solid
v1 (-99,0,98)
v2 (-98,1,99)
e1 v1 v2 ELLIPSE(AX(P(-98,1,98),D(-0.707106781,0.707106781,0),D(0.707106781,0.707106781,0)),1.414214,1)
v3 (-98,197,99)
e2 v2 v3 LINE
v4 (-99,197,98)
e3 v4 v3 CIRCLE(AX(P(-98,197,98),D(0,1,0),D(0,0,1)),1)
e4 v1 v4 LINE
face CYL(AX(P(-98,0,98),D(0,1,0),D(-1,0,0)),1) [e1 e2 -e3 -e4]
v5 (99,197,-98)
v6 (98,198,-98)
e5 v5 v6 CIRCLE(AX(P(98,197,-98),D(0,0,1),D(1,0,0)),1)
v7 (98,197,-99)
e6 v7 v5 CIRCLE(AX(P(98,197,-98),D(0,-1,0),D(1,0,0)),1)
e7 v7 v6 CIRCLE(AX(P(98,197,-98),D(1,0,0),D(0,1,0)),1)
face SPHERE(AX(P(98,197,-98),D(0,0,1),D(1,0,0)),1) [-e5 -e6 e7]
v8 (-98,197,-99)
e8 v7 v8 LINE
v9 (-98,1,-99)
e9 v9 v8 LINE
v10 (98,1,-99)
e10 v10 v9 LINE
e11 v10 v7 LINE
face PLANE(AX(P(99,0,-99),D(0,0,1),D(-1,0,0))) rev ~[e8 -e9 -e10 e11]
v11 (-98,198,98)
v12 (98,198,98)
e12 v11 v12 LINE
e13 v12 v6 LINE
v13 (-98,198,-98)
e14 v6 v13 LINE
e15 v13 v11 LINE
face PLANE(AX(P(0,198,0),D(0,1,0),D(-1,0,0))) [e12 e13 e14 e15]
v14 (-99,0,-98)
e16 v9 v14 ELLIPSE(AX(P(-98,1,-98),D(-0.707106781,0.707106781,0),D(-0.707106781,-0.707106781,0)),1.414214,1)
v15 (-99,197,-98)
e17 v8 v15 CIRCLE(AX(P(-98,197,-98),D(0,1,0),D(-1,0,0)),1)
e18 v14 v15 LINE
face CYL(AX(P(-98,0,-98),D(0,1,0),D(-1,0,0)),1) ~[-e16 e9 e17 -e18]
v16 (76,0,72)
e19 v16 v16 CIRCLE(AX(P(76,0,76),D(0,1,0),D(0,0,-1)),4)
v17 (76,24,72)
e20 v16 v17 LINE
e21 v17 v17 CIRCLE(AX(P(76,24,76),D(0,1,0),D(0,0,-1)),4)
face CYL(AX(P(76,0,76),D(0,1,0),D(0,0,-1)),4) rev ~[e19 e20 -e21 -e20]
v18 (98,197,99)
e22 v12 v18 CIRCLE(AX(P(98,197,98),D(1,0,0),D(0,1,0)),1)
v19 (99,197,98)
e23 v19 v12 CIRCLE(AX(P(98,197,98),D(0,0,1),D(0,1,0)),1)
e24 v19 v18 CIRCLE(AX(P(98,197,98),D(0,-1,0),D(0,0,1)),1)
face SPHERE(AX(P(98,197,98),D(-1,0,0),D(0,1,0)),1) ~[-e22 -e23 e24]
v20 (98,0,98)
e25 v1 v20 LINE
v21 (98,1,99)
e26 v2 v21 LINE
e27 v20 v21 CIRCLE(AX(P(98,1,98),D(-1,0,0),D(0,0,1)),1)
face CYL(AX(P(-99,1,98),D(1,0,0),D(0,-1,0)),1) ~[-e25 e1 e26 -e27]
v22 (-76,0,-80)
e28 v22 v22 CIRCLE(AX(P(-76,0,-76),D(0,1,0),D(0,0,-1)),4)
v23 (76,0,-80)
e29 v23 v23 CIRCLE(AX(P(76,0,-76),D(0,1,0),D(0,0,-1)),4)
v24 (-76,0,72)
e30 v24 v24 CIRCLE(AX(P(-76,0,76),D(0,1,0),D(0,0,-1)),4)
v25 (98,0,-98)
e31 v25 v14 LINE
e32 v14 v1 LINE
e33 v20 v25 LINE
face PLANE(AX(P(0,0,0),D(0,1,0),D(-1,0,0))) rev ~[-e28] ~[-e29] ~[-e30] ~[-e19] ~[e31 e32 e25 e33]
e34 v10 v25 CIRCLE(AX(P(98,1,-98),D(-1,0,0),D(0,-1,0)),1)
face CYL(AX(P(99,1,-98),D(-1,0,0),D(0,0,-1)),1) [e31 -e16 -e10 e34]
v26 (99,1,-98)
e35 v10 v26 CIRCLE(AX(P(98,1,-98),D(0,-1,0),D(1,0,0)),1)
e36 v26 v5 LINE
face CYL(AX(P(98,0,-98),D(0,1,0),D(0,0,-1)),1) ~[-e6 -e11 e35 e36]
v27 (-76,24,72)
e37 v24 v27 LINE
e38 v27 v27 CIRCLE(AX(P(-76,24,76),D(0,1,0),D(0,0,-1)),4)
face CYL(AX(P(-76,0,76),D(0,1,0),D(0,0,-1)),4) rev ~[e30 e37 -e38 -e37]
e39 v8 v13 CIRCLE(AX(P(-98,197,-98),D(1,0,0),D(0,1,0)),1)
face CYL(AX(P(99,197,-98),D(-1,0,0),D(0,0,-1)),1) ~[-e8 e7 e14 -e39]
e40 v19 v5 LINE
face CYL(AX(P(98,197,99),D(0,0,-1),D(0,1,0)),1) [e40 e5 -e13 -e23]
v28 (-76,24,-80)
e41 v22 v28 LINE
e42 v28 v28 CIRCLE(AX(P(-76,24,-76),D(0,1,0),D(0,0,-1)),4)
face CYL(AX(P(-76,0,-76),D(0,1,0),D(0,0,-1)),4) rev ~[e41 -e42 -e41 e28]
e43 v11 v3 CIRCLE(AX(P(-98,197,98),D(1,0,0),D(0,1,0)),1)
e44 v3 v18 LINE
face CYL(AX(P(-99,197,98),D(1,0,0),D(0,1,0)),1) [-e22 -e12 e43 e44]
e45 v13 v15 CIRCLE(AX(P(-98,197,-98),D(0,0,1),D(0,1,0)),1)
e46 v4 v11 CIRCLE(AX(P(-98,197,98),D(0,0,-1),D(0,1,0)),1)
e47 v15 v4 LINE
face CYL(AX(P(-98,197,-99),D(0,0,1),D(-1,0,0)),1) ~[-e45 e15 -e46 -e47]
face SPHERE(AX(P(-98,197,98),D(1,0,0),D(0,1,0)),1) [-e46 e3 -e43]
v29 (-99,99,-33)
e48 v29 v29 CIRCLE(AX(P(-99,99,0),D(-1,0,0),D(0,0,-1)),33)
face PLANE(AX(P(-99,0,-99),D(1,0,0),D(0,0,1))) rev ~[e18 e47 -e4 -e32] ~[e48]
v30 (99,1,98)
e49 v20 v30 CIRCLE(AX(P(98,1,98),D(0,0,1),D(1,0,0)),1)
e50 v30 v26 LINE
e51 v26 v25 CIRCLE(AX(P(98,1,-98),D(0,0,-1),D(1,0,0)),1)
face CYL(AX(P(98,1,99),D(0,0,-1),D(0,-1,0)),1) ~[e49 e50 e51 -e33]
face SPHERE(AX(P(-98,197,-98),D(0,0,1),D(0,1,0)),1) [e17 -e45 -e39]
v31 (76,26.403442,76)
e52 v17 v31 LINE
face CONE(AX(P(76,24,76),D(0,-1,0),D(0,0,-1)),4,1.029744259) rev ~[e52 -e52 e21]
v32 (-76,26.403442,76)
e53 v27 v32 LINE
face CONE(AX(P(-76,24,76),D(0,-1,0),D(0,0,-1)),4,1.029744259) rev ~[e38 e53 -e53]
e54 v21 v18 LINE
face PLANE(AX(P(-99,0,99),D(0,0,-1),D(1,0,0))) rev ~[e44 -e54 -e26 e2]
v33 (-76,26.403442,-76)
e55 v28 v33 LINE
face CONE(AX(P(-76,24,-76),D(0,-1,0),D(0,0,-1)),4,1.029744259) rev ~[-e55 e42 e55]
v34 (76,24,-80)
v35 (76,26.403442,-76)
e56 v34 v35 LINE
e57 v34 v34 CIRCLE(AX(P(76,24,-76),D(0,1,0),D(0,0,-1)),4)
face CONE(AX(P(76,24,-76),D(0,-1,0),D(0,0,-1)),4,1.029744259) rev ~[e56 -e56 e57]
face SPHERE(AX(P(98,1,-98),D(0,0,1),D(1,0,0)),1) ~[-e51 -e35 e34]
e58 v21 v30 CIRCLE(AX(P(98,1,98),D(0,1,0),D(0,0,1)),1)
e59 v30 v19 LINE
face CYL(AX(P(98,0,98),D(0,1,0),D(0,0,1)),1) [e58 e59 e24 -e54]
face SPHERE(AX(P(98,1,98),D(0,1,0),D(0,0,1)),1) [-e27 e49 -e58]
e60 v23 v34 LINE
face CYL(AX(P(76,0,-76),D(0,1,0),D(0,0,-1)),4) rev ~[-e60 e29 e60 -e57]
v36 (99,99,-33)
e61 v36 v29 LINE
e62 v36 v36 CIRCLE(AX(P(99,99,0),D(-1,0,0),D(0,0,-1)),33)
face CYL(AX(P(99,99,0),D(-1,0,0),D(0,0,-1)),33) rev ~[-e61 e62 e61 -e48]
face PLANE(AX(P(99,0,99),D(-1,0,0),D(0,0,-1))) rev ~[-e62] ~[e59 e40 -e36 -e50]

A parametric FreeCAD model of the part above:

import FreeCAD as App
import Part
import Sketcher


def edges_at(feature, points):
    """Names of the edges that pass closest to the given points."""
    edges = feature.Shape.Edges
    near = lambda p: min(range(len(edges)), key=lambda i: edges[i].distToShape(Part.Vertex(*p))[0])
    return sorted({f"Edge{near(p) + 1}" for p in points})

doc = App.newDocument("Part")
body = doc.addObject("PartDesign::Body", "Body")

# Sketch on XZ plane
sketch1 = doc.addObject("Sketcher::SketchObject", "Sketch")
body.addObject(sketch1)
sketch1.AttachmentSupport = (doc.XZ_Plane, [""])
sketch1.MapMode = "FlatFace"
sketch1.addGeometry(Part.LineSegment(App.Vector(-99, -99, 0), App.Vector(-99, 99, 0)), False)
sketch1.addGeometry(Part.LineSegment(App.Vector(-99, 99, 0), App.Vector(99, 99, 0)), False)
sketch1.addGeometry(Part.LineSegment(App.Vector(99, 99, 0), App.Vector(99, -99, 0)), False)
sketch1.addGeometry(Part.LineSegment(App.Vector(99, -99, 0), App.Vector(-99, -99, 0)), False)
sketch1.addConstraint(Sketcher.Constraint("Coincident", 0, 2, 1, 1))
sketch1.addConstraint(Sketcher.Constraint("Coincident", 1, 2, 2, 1))
sketch1.addConstraint(Sketcher.Constraint("Coincident", 2, 2, 3, 1))
sketch1.addConstraint(Sketcher.Constraint("Coincident", 3, 2, 0, 1))
sketch1.addConstraint(Sketcher.Constraint("Vertical", 0))
sketch1.addConstraint(Sketcher.Constraint("Horizontal", 1))
sketch1.addConstraint(Sketcher.Constraint("Vertical", 2))
sketch1.addConstraint(Sketcher.Constraint("Horizontal", 3))
sketch1.addConstraint(Sketcher.Constraint("Symmetric", 0, 2, 2, 2, -1, 1))
sketch1.addConstraint(Sketcher.Constraint("Equal", 3, 0))
sketch1.addConstraint(Sketcher.Constraint("DistanceX", 1, 1, 1, 2, 198.0))
pad1 = doc.addObject("PartDesign::Pad", "Pad")
body.addObject(pad1)
pad1.Profile = sketch1
pad1.Length = 198
pad1.Reversed = True

# Sketch on YZ plane
sketch2 = doc.addObject("Sketcher::SketchObject", "Sketch001")
body.addObject(sketch2)
sketch2.AttachmentSupport = (doc.YZ_Plane, [""])
sketch2.MapMode = "FlatFace"
sketch2.AttachmentOffset = App.Placement(App.Vector(0, 0, 99), App.Rotation())
sketch2.addGeometry(Part.Circle(App.Vector(99, 0, 0), App.Vector(0, 0, 1), 33), False)
sketch2.addConstraint(Sketcher.Constraint("PointOnObject", 0, 3, -1))
sketch2.addConstraint(Sketcher.Constraint("Diameter", 0, 66.0))
sketch2.addConstraint(Sketcher.Constraint("DistanceX", -1, 1, 0, 3, 99.0))
doc.recompute()
hole = doc.addObject("PartDesign::Hole", "Hole")
body.addObject(hole)
hole.Profile = sketch2
hole.ThreadType = "None"
hole.Diameter = 66
hole.DepthType = "Dimension"
hole.Depth = 198
hole.DrillPoint = "Flat"

# Sketch on XZ plane
sketch3 = doc.addObject("Sketcher::SketchObject", "Sketch002")
body.addObject(sketch3)
sketch3.AttachmentSupport = (doc.XZ_Plane, [""])
sketch3.MapMode = "FlatFace"
sketch3.addGeometry(Part.Circle(App.Vector(-76, -76, 0), App.Vector(0, 0, 1), 4), False)
sketch3.addGeometry(Part.Circle(App.Vector(76, -76, 0), App.Vector(0, 0, 1), 4), False)
sketch3.addGeometry(Part.Circle(App.Vector(76, 76, 0), App.Vector(0, 0, 1), 4), False)
sketch3.addGeometry(Part.Circle(App.Vector(-76, 76, 0), App.Vector(0, 0, 1), 4), False)
sketch3.addConstraint(Sketcher.Constraint("Equal", 0, 1))
sketch3.addConstraint(Sketcher.Constraint("Equal", 1, 2))
sketch3.addConstraint(Sketcher.Constraint("Equal", 2, 3))
sketch3.addConstraint(Sketcher.Constraint("Symmetric", 0, 3, 2, 3, -1, 1))
sketch3.addConstraint(Sketcher.Constraint("Symmetric", 1, 3, 3, 3, -1, 1))
sketch3.addConstraint(Sketcher.Constraint("Symmetric", 0, 3, 1, 3, -2))
sketch3.addConstraint(Sketcher.Constraint("Diameter", 0, 8.0))
sketch3.addConstraint(Sketcher.Constraint("DistanceX", 0, 3, -1, 1, 76.0))
sketch3.addConstraint(Sketcher.Constraint("DistanceY", 0, 3, -1, 1, 76.0))
doc.recompute()
hole2 = doc.addObject("PartDesign::Hole", "Hole001")
body.addObject(hole2)
hole2.Profile = sketch3
hole2.ThreadType = "None"
hole2.Diameter = 8
hole2.DepthType = "Dimension"
hole2.Depth = 24
hole2.DrillPoint = "Angled"
hole2.DrillPointAngle = 118
doc.recompute()

fillet = doc.addObject("PartDesign::Fillet", "Fillet")
body.addObject(fillet)
fillet.Base = (hole2, edges_at(hole2, [
    (0, 198, 99),
    (-99, 198, 0),
    (99, 198, 0),
    (99, 99, 99),
    (-99, 99, 99),
    (0, 0, 99),
    (99, 0, 0),
    (99, 99, -99),
    (0, 0, -99),
    (0, 198, -99),
    (-99, 99, -99),
]))
fillet.Radius = 1

doc.recompute()
